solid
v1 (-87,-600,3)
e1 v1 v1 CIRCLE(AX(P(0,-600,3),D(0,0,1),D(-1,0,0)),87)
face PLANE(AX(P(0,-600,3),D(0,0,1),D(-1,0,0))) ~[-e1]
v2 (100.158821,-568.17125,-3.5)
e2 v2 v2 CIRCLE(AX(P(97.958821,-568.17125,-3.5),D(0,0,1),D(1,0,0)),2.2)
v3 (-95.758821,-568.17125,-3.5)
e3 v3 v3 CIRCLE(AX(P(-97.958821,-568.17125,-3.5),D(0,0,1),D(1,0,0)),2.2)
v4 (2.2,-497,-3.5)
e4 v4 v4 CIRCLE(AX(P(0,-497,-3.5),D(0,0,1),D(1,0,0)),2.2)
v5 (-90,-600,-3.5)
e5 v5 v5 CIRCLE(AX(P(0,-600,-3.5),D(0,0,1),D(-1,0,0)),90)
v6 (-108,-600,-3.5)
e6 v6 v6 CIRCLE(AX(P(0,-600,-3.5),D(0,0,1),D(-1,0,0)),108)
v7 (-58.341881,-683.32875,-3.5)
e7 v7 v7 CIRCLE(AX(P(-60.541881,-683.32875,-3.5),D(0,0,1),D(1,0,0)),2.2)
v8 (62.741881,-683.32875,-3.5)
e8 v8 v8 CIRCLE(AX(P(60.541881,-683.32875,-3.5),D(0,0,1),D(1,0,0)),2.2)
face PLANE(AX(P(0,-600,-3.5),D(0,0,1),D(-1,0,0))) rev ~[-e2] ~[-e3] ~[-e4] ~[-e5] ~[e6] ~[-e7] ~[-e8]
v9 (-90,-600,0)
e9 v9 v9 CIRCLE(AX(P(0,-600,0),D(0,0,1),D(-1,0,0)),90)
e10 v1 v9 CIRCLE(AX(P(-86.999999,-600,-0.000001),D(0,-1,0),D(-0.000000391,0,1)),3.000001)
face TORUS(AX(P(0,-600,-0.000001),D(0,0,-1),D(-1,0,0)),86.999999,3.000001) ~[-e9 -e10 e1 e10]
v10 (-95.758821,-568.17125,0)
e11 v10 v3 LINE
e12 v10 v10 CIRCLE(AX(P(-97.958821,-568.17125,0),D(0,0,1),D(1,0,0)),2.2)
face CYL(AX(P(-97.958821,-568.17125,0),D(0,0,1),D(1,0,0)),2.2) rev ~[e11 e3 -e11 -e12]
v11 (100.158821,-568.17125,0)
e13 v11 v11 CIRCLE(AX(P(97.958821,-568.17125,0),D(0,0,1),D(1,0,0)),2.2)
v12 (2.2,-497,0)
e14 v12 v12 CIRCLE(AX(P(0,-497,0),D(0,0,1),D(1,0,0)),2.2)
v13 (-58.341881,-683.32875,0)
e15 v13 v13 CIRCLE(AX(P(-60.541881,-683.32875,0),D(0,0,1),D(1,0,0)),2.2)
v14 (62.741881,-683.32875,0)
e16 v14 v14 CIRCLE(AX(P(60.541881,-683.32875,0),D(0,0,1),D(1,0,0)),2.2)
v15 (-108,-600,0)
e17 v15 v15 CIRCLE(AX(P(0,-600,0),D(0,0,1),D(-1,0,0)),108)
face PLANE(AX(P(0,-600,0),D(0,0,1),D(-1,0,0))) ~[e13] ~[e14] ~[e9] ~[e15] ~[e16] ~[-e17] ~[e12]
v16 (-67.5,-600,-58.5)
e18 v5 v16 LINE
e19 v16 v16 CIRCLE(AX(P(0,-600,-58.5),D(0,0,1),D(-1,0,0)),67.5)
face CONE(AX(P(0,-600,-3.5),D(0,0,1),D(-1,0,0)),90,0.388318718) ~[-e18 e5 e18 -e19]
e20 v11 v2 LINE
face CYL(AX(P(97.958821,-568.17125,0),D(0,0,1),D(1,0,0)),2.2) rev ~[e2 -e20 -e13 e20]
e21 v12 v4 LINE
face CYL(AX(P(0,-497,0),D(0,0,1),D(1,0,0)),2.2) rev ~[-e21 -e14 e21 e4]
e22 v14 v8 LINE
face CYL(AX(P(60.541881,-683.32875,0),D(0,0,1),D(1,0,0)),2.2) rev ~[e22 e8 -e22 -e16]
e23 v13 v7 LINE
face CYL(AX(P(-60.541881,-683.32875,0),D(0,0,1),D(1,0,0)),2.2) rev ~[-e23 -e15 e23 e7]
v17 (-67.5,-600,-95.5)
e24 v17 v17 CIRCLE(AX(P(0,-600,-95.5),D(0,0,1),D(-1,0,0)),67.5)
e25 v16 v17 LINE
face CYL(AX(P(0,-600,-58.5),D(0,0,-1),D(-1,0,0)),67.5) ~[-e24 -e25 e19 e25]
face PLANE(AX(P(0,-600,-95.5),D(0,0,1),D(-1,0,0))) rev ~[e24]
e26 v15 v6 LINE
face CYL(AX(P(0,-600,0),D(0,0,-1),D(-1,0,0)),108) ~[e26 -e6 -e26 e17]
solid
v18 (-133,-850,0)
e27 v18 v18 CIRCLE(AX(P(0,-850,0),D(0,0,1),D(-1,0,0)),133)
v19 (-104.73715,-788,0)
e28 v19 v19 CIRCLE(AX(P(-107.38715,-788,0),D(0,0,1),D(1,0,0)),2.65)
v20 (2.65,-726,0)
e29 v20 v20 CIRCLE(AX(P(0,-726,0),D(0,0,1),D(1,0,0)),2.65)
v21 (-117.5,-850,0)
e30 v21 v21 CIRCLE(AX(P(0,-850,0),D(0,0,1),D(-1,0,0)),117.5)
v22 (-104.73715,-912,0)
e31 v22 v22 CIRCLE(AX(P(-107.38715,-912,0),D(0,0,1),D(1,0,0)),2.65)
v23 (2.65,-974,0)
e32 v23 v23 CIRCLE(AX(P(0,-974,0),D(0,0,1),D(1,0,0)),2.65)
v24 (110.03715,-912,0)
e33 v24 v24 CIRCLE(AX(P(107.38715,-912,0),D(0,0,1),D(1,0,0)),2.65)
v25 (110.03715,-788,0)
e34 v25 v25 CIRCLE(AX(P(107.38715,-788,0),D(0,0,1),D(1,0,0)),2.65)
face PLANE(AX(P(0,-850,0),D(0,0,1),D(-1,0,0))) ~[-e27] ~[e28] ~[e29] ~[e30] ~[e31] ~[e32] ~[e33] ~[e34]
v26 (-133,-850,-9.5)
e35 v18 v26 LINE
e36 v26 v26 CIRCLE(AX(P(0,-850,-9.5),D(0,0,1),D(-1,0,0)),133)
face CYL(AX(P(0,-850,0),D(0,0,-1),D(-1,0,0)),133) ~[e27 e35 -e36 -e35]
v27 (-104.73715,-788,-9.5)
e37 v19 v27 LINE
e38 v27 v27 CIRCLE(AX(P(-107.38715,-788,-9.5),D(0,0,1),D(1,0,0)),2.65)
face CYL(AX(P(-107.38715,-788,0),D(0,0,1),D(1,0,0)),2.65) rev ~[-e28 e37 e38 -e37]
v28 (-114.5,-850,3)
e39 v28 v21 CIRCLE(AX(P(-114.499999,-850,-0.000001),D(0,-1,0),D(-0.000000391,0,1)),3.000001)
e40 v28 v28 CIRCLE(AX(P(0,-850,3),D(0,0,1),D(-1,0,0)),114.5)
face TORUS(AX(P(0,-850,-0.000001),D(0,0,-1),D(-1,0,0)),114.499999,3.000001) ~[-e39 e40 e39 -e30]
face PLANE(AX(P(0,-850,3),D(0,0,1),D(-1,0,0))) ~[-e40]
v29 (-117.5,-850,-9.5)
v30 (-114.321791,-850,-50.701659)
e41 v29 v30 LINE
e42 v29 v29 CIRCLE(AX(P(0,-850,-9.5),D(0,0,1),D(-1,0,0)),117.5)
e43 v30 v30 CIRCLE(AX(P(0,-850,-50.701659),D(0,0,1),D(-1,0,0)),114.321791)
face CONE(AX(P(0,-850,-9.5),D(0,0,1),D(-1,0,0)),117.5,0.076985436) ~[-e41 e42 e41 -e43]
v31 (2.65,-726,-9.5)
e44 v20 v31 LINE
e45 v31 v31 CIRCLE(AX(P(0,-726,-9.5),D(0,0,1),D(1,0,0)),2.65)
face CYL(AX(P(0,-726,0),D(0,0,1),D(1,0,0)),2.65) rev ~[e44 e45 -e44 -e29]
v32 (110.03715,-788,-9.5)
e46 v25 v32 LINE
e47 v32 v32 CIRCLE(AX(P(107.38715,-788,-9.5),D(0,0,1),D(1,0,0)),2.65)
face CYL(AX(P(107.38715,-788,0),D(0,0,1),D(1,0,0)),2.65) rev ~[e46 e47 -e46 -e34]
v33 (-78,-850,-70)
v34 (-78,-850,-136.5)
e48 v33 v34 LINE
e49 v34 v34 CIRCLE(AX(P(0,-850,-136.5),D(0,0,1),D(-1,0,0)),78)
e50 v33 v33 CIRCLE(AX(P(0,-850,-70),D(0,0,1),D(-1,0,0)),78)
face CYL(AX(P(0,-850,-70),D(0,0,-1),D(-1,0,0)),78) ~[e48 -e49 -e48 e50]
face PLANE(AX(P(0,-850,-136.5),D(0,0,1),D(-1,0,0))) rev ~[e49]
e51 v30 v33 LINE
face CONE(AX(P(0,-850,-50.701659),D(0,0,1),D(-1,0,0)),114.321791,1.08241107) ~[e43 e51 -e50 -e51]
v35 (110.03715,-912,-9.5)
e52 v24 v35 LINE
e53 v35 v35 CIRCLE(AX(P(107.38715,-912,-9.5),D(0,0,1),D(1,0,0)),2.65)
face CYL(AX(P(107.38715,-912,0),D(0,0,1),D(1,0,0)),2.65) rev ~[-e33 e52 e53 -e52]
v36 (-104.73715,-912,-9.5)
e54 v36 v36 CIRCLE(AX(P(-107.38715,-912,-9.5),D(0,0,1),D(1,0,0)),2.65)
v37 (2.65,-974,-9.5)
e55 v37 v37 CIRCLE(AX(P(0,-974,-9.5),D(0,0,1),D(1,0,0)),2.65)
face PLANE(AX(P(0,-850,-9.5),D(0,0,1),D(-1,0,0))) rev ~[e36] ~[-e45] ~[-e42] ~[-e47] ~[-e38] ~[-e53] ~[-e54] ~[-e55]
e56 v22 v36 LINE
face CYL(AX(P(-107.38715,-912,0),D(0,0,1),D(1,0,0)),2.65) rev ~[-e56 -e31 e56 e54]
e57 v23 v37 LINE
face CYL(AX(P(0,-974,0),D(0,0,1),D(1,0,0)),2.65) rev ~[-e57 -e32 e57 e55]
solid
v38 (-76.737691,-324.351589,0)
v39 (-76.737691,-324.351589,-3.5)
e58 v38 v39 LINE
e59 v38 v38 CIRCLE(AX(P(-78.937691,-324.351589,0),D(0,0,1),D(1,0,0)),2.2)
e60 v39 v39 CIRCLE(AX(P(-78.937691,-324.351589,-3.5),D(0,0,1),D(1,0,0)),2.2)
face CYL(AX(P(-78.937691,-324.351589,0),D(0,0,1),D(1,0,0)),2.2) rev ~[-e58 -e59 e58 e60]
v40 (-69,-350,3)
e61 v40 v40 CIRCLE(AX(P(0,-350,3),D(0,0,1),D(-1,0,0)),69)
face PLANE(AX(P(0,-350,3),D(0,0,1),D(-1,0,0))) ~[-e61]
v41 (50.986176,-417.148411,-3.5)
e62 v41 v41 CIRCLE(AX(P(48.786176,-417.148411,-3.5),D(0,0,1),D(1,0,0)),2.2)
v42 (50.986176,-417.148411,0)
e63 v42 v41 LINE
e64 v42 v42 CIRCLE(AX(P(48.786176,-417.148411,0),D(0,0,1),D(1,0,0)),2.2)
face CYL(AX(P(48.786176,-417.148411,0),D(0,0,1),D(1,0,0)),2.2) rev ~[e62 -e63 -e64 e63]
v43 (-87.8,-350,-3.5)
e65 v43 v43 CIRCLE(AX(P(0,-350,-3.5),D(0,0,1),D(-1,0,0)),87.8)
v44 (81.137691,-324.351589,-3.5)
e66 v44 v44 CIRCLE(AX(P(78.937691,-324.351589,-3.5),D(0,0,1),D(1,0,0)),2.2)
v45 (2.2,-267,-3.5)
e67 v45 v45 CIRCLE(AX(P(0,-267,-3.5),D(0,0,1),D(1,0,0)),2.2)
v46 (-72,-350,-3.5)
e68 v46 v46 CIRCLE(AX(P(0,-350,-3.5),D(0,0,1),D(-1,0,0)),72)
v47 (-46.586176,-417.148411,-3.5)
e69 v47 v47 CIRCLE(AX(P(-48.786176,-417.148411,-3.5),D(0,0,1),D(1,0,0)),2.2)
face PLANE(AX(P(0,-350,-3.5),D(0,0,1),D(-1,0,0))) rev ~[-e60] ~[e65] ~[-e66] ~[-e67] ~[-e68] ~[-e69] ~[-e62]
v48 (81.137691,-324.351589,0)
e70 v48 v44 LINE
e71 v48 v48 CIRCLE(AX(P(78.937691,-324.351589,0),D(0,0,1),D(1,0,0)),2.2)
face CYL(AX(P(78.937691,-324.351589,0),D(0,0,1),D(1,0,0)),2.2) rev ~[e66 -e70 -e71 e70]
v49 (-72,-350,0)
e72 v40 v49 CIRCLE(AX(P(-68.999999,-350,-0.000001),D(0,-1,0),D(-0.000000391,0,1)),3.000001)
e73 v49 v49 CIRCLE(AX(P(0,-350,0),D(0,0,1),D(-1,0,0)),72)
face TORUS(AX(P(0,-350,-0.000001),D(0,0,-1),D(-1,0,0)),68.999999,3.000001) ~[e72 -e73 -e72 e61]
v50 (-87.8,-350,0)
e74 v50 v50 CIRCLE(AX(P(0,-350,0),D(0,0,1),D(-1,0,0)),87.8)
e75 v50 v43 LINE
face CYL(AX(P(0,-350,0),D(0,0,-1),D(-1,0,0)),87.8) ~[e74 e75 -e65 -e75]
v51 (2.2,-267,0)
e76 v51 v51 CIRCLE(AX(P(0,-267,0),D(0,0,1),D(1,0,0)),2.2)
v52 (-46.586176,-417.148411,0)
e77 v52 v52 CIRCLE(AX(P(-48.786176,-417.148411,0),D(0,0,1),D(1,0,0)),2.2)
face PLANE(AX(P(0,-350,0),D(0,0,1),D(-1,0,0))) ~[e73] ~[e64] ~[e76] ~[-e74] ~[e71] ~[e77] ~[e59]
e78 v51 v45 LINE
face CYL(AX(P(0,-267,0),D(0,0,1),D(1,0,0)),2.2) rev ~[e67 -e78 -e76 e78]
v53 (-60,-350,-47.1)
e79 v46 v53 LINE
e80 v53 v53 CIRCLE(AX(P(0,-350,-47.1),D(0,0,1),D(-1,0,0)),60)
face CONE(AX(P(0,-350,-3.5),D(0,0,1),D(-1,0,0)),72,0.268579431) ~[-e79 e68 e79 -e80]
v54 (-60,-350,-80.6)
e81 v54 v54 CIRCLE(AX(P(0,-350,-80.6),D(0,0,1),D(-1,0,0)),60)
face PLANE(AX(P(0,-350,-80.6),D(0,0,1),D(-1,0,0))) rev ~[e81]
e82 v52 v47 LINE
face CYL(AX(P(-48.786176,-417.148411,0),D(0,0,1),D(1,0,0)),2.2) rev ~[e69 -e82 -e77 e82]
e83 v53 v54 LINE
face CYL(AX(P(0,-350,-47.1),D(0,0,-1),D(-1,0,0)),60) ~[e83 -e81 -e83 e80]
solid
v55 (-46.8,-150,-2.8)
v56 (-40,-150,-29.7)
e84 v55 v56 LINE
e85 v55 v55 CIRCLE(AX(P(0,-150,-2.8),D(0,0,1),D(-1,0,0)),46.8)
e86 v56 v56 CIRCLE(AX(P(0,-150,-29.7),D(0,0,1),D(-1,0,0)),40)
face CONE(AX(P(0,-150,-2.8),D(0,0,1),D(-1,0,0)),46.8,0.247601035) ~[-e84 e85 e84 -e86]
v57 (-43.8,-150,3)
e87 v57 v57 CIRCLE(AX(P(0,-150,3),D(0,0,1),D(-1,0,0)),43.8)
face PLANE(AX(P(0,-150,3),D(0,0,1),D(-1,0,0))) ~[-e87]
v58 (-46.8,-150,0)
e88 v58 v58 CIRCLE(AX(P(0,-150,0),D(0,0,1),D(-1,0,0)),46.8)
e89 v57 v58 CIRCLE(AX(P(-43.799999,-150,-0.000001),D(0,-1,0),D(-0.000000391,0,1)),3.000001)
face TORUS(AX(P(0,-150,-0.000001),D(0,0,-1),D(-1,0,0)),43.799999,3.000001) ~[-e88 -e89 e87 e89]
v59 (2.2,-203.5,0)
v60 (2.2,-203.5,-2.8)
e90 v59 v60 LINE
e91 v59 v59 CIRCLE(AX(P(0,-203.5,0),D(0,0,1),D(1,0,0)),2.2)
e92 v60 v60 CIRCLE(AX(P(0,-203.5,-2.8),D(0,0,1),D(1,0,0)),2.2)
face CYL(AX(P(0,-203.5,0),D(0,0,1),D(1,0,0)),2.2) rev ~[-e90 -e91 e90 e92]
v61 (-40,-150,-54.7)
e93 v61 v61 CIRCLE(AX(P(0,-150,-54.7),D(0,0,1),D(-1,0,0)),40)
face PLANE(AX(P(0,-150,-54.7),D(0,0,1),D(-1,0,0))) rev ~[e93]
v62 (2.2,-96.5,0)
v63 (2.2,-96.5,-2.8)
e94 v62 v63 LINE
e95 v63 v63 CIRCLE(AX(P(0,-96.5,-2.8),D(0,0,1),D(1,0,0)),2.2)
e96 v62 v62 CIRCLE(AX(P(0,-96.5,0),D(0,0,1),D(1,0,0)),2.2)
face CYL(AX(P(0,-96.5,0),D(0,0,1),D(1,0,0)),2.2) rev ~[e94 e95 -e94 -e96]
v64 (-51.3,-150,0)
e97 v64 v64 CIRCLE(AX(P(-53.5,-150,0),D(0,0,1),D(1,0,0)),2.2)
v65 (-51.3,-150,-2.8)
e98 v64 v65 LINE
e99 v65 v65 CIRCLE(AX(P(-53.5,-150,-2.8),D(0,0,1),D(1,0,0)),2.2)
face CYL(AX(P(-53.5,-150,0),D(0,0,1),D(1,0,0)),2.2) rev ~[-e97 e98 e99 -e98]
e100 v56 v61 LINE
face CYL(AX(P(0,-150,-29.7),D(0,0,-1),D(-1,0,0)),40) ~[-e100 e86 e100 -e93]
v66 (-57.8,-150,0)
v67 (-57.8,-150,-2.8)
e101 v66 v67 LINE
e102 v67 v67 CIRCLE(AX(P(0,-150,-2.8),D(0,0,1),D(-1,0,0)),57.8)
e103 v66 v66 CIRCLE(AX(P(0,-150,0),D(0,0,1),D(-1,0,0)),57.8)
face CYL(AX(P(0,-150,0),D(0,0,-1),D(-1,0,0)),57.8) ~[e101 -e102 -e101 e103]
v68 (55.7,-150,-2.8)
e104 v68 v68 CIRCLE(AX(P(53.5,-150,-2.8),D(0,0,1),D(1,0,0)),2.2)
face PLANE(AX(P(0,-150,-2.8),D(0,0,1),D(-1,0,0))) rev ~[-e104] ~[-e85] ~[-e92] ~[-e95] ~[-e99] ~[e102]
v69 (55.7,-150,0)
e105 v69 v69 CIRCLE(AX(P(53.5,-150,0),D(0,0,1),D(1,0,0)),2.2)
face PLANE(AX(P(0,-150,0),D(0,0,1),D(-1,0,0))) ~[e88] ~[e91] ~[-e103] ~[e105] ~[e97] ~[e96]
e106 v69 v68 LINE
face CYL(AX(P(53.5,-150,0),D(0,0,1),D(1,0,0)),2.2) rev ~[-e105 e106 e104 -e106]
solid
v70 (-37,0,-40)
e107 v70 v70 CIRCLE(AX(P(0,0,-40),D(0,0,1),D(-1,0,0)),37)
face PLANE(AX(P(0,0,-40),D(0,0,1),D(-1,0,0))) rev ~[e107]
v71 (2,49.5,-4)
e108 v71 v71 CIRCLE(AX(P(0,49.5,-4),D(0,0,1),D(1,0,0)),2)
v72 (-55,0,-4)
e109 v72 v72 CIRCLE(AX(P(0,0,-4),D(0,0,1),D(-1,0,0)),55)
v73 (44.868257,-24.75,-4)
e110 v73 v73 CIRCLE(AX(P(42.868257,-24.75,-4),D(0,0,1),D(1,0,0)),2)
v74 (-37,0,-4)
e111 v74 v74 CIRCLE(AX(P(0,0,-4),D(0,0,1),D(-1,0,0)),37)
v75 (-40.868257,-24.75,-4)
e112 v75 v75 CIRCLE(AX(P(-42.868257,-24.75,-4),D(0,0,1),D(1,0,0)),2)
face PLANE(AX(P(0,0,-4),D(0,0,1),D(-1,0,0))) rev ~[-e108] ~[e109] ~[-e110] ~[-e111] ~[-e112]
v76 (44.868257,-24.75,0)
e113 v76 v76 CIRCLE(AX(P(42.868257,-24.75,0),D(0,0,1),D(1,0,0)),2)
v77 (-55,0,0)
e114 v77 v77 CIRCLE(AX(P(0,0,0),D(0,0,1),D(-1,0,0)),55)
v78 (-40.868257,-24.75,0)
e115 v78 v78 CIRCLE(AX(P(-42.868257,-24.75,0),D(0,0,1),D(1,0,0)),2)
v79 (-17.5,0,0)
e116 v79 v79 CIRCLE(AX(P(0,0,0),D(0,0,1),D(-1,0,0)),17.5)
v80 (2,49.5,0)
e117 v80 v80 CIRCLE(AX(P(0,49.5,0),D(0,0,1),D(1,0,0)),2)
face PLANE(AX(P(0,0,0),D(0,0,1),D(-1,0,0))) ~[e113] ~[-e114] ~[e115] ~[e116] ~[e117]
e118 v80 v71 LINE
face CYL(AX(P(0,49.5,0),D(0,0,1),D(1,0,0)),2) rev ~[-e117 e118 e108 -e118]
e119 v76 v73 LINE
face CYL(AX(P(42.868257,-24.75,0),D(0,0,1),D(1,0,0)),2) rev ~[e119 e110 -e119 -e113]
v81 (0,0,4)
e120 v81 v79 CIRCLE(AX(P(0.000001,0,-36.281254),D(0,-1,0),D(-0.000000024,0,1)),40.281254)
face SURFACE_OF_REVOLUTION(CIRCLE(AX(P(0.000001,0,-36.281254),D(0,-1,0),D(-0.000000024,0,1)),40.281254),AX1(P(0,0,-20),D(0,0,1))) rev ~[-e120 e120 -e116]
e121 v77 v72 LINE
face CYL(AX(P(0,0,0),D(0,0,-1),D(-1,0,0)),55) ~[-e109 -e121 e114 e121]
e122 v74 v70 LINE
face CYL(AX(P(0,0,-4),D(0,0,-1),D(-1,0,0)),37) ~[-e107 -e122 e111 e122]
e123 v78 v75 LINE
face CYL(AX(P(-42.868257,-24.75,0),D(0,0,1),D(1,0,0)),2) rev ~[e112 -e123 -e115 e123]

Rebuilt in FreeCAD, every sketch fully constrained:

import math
import FreeCAD as App
import Part
import Sketcher
Q = App.Units.Quantity

doc = App.newDocument("Part")
body = doc.addObject("PartDesign::Body", "Body")

# Sketch on XZ plane
sketch1 = body.newObject("Sketcher::SketchObject", "Sketch")
sketch1.AttachmentSupport = (doc.getObject("XZ_Plane"), [""])
sketch1.MapMode = "FlatFace"
sketch1.addGeometry(Part.ArcOfCircle(Part.Circle(App.Vector(0, -36.3, 0), App.Vector(0, 0, 1), 40.3), math.radians(90), math.radians(116)), False)
sketch1.addGeometry(Part.LineSegment(App.Vector(-17.5, 0, 0), App.Vector(-55, 0, 0)), False)
sketch1.addGeometry(Part.LineSegment(App.Vector(-55, 0, 0), App.Vector(-55, -4, 0)), False)
sketch1.addGeometry(Part.LineSegment(App.Vector(-55, -4, 0), App.Vector(-37, -4, 0)), False)
sketch1.addGeometry(Part.LineSegment(App.Vector(-37, -4, 0), App.Vector(-37, -40, 0)), False)
sketch1.addGeometry(Part.LineSegment(App.Vector(-37, -40, 0), App.Vector(0, -40, 0)), False)
sketch1.addGeometry(Part.LineSegment(App.Vector(0, -40, 0), App.Vector(0, 4, 0)), False)
sketch1.addConstraint(Sketcher.Constraint("Coincident", 0, 2, 1, 1))
sketch1.addConstraint(Sketcher.Constraint("Coincident", 1, 2, 2, 1))
sketch1.addConstraint(Sketcher.Constraint("Coincident", 2, 2, 3, 1))
sketch1.addConstraint(Sketcher.Constraint("Coincident", 3, 2, 4, 1))
sketch1.addConstraint(Sketcher.Constraint("Coincident", 4, 2, 5, 1))
sketch1.addConstraint(Sketcher.Constraint("Coincident", 5, 2, 6, 1))
sketch1.addConstraint(Sketcher.Constraint("Coincident", 6, 2, 0, 1))
sketch1.addConstraint(Sketcher.Constraint("Horizontal", 1))
sketch1.addConstraint(Sketcher.Constraint("Vertical", 2))
sketch1.addConstraint(Sketcher.Constraint("Horizontal", 3))
sketch1.addConstraint(Sketcher.Constraint("Vertical", 4))
sketch1.addConstraint(Sketcher.Constraint("Horizontal", 5))
sketch1.addConstraint(Sketcher.Constraint("Vertical", 6))
sketch1.addConstraint(Sketcher.Constraint("PointOnObject", 0, 3, -2))
sketch1.addConstraint(Sketcher.Constraint("PointOnObject", 0, 2, -1))
sketch1.addConstraint(Sketcher.Constraint("PointOnObject", 5, 2, -2))
sketch1.addConstraint(Sketcher.Constraint("DistanceX", 3, 1, 3, 2, Q("18 mm")))
sketch1.addConstraint(Sketcher.Constraint("DistanceX", 5, 1, 5, 2, Q("37 mm")))
sketch1.addConstraint(Sketcher.Constraint("DistanceY", 2, 2, 2, 1, Q("4 mm")))
sketch1.addConstraint(Sketcher.Constraint("DistanceY", 4, 2, 4, 1, Q("36 mm")))
sketch1.addConstraint(Sketcher.Constraint("DistanceY", 6, 1, 6, 2, Q("44 mm")))
sketch1.addConstraint(Sketcher.Constraint("DistanceX", 1, 2, 1, 1, Q("37.5 mm")))
revolution = body.newObject("PartDesign::Revolution", "Revolution")
revolution.Profile = sketch1
revolution.ReferenceAxis = (sketch1, ["V_Axis"])
revolution.Angle = 360

# Sketch on XY plane
sketch2 = body.newObject("Sketcher::SketchObject", "Sketch001")
sketch2.AttachmentSupport = (doc.getObject("XY_Plane"), [""])
sketch2.MapMode = "FlatFace"
sketch2.addGeometry(Part.Circle(App.Vector(0, 49.5, 0), App.Vector(0, 0, 1), 2), False)
sketch2.addGeometry(Part.Circle(App.Vector(-42.9, -24.8, 0), App.Vector(0, 0, 1), 2), False)
sketch2.addGeometry(Part.Circle(App.Vector(42.9, -24.8, 0), App.Vector(0, 0, 1), 2), False)
sketch2.addConstraint(Sketcher.Constraint("Equal", 0, 1))
sketch2.addConstraint(Sketcher.Constraint("Equal", 1, 2))
sketch2.addConstraint(Sketcher.Constraint("Symmetric", 1, 3, 2, 3, -2))
sketch2.addConstraint(Sketcher.Constraint("PointOnObject", 0, 3, -2))
sketch2.addConstraint(Sketcher.Constraint("Diameter", 0, Q("4 mm")))
sketch2.addConstraint(Sketcher.Constraint("DistanceY", -1, 1, 0, 3, Q("49.5 mm")))
sketch2.addConstraint(Sketcher.Constraint("DistanceY", 1, 3, -1, 1, Q("24.75 mm")))
sketch2.addConstraint(Sketcher.Constraint("DistanceX", 1, 3, -1, 1, Q("42.868257 mm")))
pocket1 = body.newObject("PartDesign::Pocket", "Pocket")
pocket1.Profile = sketch2
pocket1.Type = "ThroughAll"
body2 = doc.addObject("PartDesign::Body", "Body001")

# Sketch on XZ plane
sketch3 = body2.newObject("Sketcher::SketchObject", "Sketch002")
sketch3.AttachmentSupport = (doc.getObject("XZ_Plane001"), [""])
sketch3.MapMode = "FlatFace"
sketch3.AttachmentOffset = App.Placement(App.Vector(0, 0, 150), App.Rotation())
sketch3.addGeometry(Part.LineSegment(App.Vector(0, -54.7, 0), App.Vector(0, 3, 0)), False)
sketch3.addGeometry(Part.LineSegment(App.Vector(0, 3, 0), App.Vector(-43.8, 3, 0)), False)
sketch3.addGeometry(Part.ArcOfCircle(Part.Circle(App.Vector(-43.8, 0, 0), App.Vector(0, 0, 1), 3), math.radians(90), math.radians(180)), False)
sketch3.addGeometry(Part.LineSegment(App.Vector(-46.8, 0, 0), App.Vector(-57.8, 0, 0)), False)
sketch3.addGeometry(Part.LineSegment(App.Vector(-57.8, 0, 0), App.Vector(-57.8, -2.8, 0)), False)
sketch3.addGeometry(Part.LineSegment(App.Vector(-57.8, -2.8, 0), App.Vector(-46.8, -2.8, 0)), False)
sketch3.addGeometry(Part.LineSegment(App.Vector(-46.8, -2.8, 0), App.Vector(-40, -29.7, 0)), False)
sketch3.addGeometry(Part.LineSegment(App.Vector(-40, -29.7, 0), App.Vector(-40, -54.7, 0)), False)
sketch3.addGeometry(Part.LineSegment(App.Vector(-40, -54.7, 0), App.Vector(0, -54.7, 0)), False)
sketch3.addConstraint(Sketcher.Constraint("Coincident", 0, 2, 1, 1))
sketch3.addConstraint(Sketcher.Constraint("Tangent", 1, 2, 2, 1))
sketch3.addConstraint(Sketcher.Constraint("Coincident", 2, 2, 3, 1))
sketch3.addConstraint(Sketcher.Constraint("Coincident", 3, 2, 4, 1))
sketch3.addConstraint(Sketcher.Constraint("Coincident", 4, 2, 5, 1))
sketch3.addConstraint(Sketcher.Constraint("Coincident", 5, 2, 6, 1))
sketch3.addConstraint(Sketcher.Constraint("Coincident", 6, 2, 7, 1))
sketch3.addConstraint(Sketcher.Constraint("Coincident", 7, 2, 8, 1))
sketch3.addConstraint(Sketcher.Constraint("Coincident", 8, 2, 0, 1))
sketch3.addConstraint(Sketcher.Constraint("Vertical", 0))
sketch3.addConstraint(Sketcher.Constraint("Horizontal", 1))
sketch3.addConstraint(Sketcher.Constraint("Horizontal", 3))
sketch3.addConstraint(Sketcher.Constraint("Vertical", 4))
sketch3.addConstraint(Sketcher.Constraint("Horizontal", 5))
sketch3.addConstraint(Sketcher.Constraint("Vertical", 7))
sketch3.addConstraint(Sketcher.Constraint("Horizontal", 8))
sketch3.addConstraint(Sketcher.Constraint("PointOnObject", 2, 3, -1))
sketch3.addConstraint(Sketcher.Constraint("PointOnObject", 0, 2, -2))
sketch3.addConstraint(Sketcher.Constraint("PointOnObject", 2, 2, -1))
sketch3.addConstraint(Sketcher.Constraint("Vertical", 2, 2, 5, 2))
sketch3.addConstraint(Sketcher.Constraint("Radius", 2, Q("3.000001 mm")))
sketch3.addConstraint(Sketcher.Constraint("DistanceX", 3, 2, 3, 1, Q("11 mm")))
sketch3.addConstraint(Sketcher.Constraint("DistanceX", 8, 1, 8, 2, Q("40 mm")))
sketch3.addConstraint(Sketcher.Constraint("DistanceY", 7, 2, 7, 1, Q("25 mm")))
sketch3.addConstraint(Sketcher.Constraint("DistanceX", 1, 2, 1, 1, Q("43.8 mm")))
sketch3.addConstraint(Sketcher.Constraint("DistanceY", 0, 1, 0, 2, Q("57.7 mm")))
sketch3.addConstraint(Sketcher.Constraint("DistanceY", 4, 2, 4, 1, Q("2.8 mm")))
revolution2 = body2.newObject("PartDesign::Revolution", "Revolution001")
revolution2.Profile = sketch3
revolution2.ReferenceAxis = (sketch3, ["V_Axis"])
revolution2.Angle = 360

# Sketch on XY plane
sketch4 = body2.newObject("Sketcher::SketchObject", "Sketch003")
sketch4.AttachmentSupport = (doc.getObject("XY_Plane001"), [""])
sketch4.MapMode = "FlatFace"
sketch4.addGeometry(Part.Circle(App.Vector(0, -96.5, 0), App.Vector(0, 0, 1), 2.2), False)
sketch4.addGeometry(Part.Circle(App.Vector(-53.5, -150, 0), App.Vector(0, 0, 1), 2.2), False)
sketch4.addGeometry(Part.Circle(App.Vector(0, -203.5, 0), App.Vector(0, 0, 1), 2.2), False)
sketch4.addGeometry(Part.Circle(App.Vector(53.5, -150, 0), App.Vector(0, 0, 1), 2.2), False)
sketch4.addConstraint(Sketcher.Constraint("Equal", 0, 1))
sketch4.addConstraint(Sketcher.Constraint("Equal", 1, 2))
sketch4.addConstraint(Sketcher.Constraint("Equal", 2, 3))
sketch4.addConstraint(Sketcher.Constraint("Symmetric", 1, 3, 3, 3, -2))
sketch4.addConstraint(Sketcher.Constraint("PointOnObject", 0, 3, -2))
sketch4.addConstraint(Sketcher.Constraint("PointOnObject", 2, 3, -2))
sketch4.addConstraint(Sketcher.Constraint("Diameter", 0, Q("4.4 mm")))
sketch4.addConstraint(Sketcher.Constraint("DistanceY", 1, 3, -1, 1, Q("150 mm")))
sketch4.addConstraint(Sketcher.Constraint("DistanceY", 2, 3, 0, 3, Q("107 mm")))
sketch4.addConstraint(Sketcher.Constraint("DistanceX", 1, 3, 3, 3, Q("107 mm")))
sketch4.addConstraint(Sketcher.Constraint("DistanceY", 0, 3, -1, 1, Q("96.5 mm")))
pocket2 = body2.newObject("PartDesign::Pocket", "Pocket001")
pocket2.Profile = sketch4
pocket2.Type = "ThroughAll"
body3 = doc.addObject("PartDesign::Body", "Body002")

# Sketch on XZ plane
sketch5 = body3.newObject("Sketcher::SketchObject", "Sketch004")
sketch5.AttachmentSupport = (doc.getObject("XZ_Plane002"), [""])
sketch5.MapMode = "FlatFace"
sketch5.AttachmentOffset = App.Placement(App.Vector(0, 0, 350), App.Rotation())
sketch5.addGeometry(Part.LineSegment(App.Vector(0, -80.6, 0), App.Vector(0, 3, 0)), False)
sketch5.addGeometry(Part.LineSegment(App.Vector(0, 3, 0), App.Vector(-69, 3, 0)), False)
sketch5.addGeometry(Part.ArcOfCircle(Part.Circle(App.Vector(-69, 0, 0), App.Vector(0, 0, 1), 3), math.radians(90), math.radians(180)), False)
sketch5.addGeometry(Part.LineSegment(App.Vector(-72, 0, 0), App.Vector(-87.8, 0, 0)), False)
sketch5.addGeometry(Part.LineSegment(App.Vector(-87.8, 0, 0), App.Vector(-87.8, -3.5, 0)), False)
sketch5.addGeometry(Part.LineSegment(App.Vector(-87.8, -3.5, 0), App.Vector(-72, -3.5, 0)), False)
sketch5.addGeometry(Part.LineSegment(App.Vector(-72, -3.5, 0), App.Vector(-60, -47.1, 0)), False)
sketch5.addGeometry(Part.LineSegment(App.Vector(-60, -47.1, 0), App.Vector(-60, -80.6, 0)), False)
sketch5.addGeometry(Part.LineSegment(App.Vector(-60, -80.6, 0), App.Vector(0, -80.6, 0)), False)
sketch5.addConstraint(Sketcher.Constraint("Coincident", 0, 2, 1, 1))
sketch5.addConstraint(Sketcher.Constraint("Tangent", 1, 2, 2, 1))
sketch5.addConstraint(Sketcher.Constraint("Coincident", 2, 2, 3, 1))
sketch5.addConstraint(Sketcher.Constraint("Coincident", 3, 2, 4, 1))
sketch5.addConstraint(Sketcher.Constraint("Coincident", 4, 2, 5, 1))
sketch5.addConstraint(Sketcher.Constraint("Coincident", 5, 2, 6, 1))
sketch5.addConstraint(Sketcher.Constraint("Coincident", 6, 2, 7, 1))
sketch5.addConstraint(Sketcher.Constraint("Coincident", 7, 2, 8, 1))
sketch5.addConstraint(Sketcher.Constraint("Coincident", 8, 2, 0, 1))
sketch5.addConstraint(Sketcher.Constraint("Vertical", 0))
sketch5.addConstraint(Sketcher.Constraint("Horizontal", 1))
sketch5.addConstraint(Sketcher.Constraint("Horizontal", 3))
sketch5.addConstraint(Sketcher.Constraint("Vertical", 4))
sketch5.addConstraint(Sketcher.Constraint("Horizontal", 5))
sketch5.addConstraint(Sketcher.Constraint("Vertical", 7))
sketch5.addConstraint(Sketcher.Constraint("Horizontal", 8))
sketch5.addConstraint(Sketcher.Constraint("PointOnObject", 2, 3, -1))
sketch5.addConstraint(Sketcher.Constraint("PointOnObject", 0, 2, -2))
sketch5.addConstraint(Sketcher.Constraint("PointOnObject", 2, 2, -1))
sketch5.addConstraint(Sketcher.Constraint("Vertical", 2, 2, 5, 2))
sketch5.addConstraint(Sketcher.Constraint("Radius", 2, Q("3.000001 mm")))
sketch5.addConstraint(Sketcher.Constraint("DistanceX", 1, 2, 1, 1, Q("69 mm")))
sketch5.addConstraint(Sketcher.Constraint("DistanceX", 8, 1, 8, 2, Q("60 mm")))
sketch5.addConstraint(Sketcher.Constraint("DistanceX", 3, 2, 3, 1, Q("15.8 mm")))
sketch5.addConstraint(Sketcher.Constraint("DistanceY", 0, 1, 0, 2, Q("83.6 mm")))
sketch5.addConstraint(Sketcher.Constraint("DistanceY", 4, 2, 4, 1, Q("3.5 mm")))
sketch5.addConstraint(Sketcher.Constraint("DistanceY", 7, 2, 7, 1, Q("33.5 mm")))
revolution3 = body3.newObject("PartDesign::Revolution", "Revolution002")
revolution3.Profile = sketch5
revolution3.ReferenceAxis = (sketch5, ["V_Axis"])
revolution3.Angle = 360

# Sketch on XY plane
sketch6 = body3.newObject("Sketcher::SketchObject", "Sketch005")
sketch6.AttachmentSupport = (doc.getObject("XY_Plane002"), [""])
sketch6.MapMode = "FlatFace"
sketch6.addGeometry(Part.Circle(App.Vector(0, -267, 0), App.Vector(0, 0, 1), 2.2), False)
sketch6.addGeometry(Part.Circle(App.Vector(-78.9, -324.4, 0), App.Vector(0, 0, 1), 2.2), False)
sketch6.addGeometry(Part.Circle(App.Vector(-48.8, -417.1, 0), App.Vector(0, 0, 1), 2.2), False)
sketch6.addGeometry(Part.Circle(App.Vector(48.8, -417.1, 0), App.Vector(0, 0, 1), 2.2), False)
sketch6.addGeometry(Part.Circle(App.Vector(78.9, -324.4, 0), App.Vector(0, 0, 1), 2.2), False)
sketch6.addConstraint(Sketcher.Constraint("Equal", 0, 1))
sketch6.addConstraint(Sketcher.Constraint("Equal", 1, 2))
sketch6.addConstraint(Sketcher.Constraint("Equal", 2, 3))
sketch6.addConstraint(Sketcher.Constraint("Equal", 3, 4))
sketch6.addConstraint(Sketcher.Constraint("Symmetric", 2, 3, 3, 3, -2))
sketch6.addConstraint(Sketcher.Constraint("Symmetric", 1, 3, 4, 3, -2))
sketch6.addConstraint(Sketcher.Constraint("PointOnObject", 0, 3, -2))
sketch6.addConstraint(Sketcher.Constraint("Diameter", 0, Q("4.4 mm")))
sketch6.addConstraint(Sketcher.Constraint("DistanceY", 0, 3, -1, 1, Q("267 mm")))
sketch6.addConstraint(Sketcher.Constraint("DistanceX", 1, 3, -1, 1, Q("78.937691 mm")))
sketch6.addConstraint(Sketcher.Constraint("DistanceY", 1, 3, -1, 1, Q("324.351589 mm")))
sketch6.addConstraint(Sketcher.Constraint("DistanceY", 2, 3, -1, 1, Q("417.148411 mm")))
sketch6.addConstraint(Sketcher.Constraint("DistanceX", 2, 3, 3, 3, Q("97.572352 mm")))
pocket3 = body3.newObject("PartDesign::Pocket", "Pocket002")
pocket3.Profile = sketch6
pocket3.Type = "ThroughAll"
body4 = doc.addObject("PartDesign::Body", "Body003")

# Sketch on XZ plane
sketch7 = body4.newObject("Sketcher::SketchObject", "Sketch006")
sketch7.AttachmentSupport = (doc.getObject("XZ_Plane003"), [""])
sketch7.MapMode = "FlatFace"
sketch7.AttachmentOffset = App.Placement(App.Vector(0, 0, 600), App.Rotation())
sketch7.addGeometry(Part.LineSegment(App.Vector(0, -95.5, 0), App.Vector(0, 3, 0)), False)
sketch7.addGeometry(Part.LineSegment(App.Vector(0, 3, 0), App.Vector(-87, 3, 0)), False)
sketch7.addGeometry(Part.ArcOfCircle(Part.Circle(App.Vector(-87, 0, 0), App.Vector(0, 0, 1), 3), math.radians(90), math.radians(180)), False)
sketch7.addGeometry(Part.LineSegment(App.Vector(-90, 0, 0), App.Vector(-108, 0, 0)), False)
sketch7.addGeometry(Part.LineSegment(App.Vector(-108, 0, 0), App.Vector(-108, -3.5, 0)), False)
sketch7.addGeometry(Part.LineSegment(App.Vector(-108, -3.5, 0), App.Vector(-90, -3.5, 0)), False)
sketch7.addGeometry(Part.LineSegment(App.Vector(-90, -3.5, 0), App.Vector(-67.5, -58.5, 0)), False)
sketch7.addGeometry(Part.LineSegment(App.Vector(-67.5, -58.5, 0), App.Vector(-67.5, -95.5, 0)), False)
sketch7.addGeometry(Part.LineSegment(App.Vector(-67.5, -95.5, 0), App.Vector(0, -95.5, 0)), False)
sketch7.addConstraint(Sketcher.Constraint("Coincident", 0, 2, 1, 1))
sketch7.addConstraint(Sketcher.Constraint("Tangent", 1, 2, 2, 1))
sketch7.addConstraint(Sketcher.Constraint("Coincident", 2, 2, 3, 1))
sketch7.addConstraint(Sketcher.Constraint("Coincident", 3, 2, 4, 1))
sketch7.addConstraint(Sketcher.Constraint("Coincident", 4, 2, 5, 1))
sketch7.addConstraint(Sketcher.Constraint("Coincident", 5, 2, 6, 1))
sketch7.addConstraint(Sketcher.Constraint("Coincident", 6, 2, 7, 1))
sketch7.addConstraint(Sketcher.Constraint("Coincident", 7, 2, 8, 1))
sketch7.addConstraint(Sketcher.Constraint("Coincident", 8, 2, 0, 1))
sketch7.addConstraint(Sketcher.Constraint("Vertical", 0))
sketch7.addConstraint(Sketcher.Constraint("Horizontal", 1))
sketch7.addConstraint(Sketcher.Constraint("Horizontal", 3))
sketch7.addConstraint(Sketcher.Constraint("Vertical", 4))
sketch7.addConstraint(Sketcher.Constraint("Horizontal", 5))
sketch7.addConstraint(Sketcher.Constraint("Vertical", 7))
sketch7.addConstraint(Sketcher.Constraint("Horizontal", 8))
sketch7.addConstraint(Sketcher.Constraint("PointOnObject", 2, 3, -1))
sketch7.addConstraint(Sketcher.Constraint("PointOnObject", 0, 2, -2))
sketch7.addConstraint(Sketcher.Constraint("PointOnObject", 2, 2, -1))
sketch7.addConstraint(Sketcher.Constraint("Vertical", 2, 2, 5, 2))
sketch7.addConstraint(Sketcher.Constraint("Radius", 2, Q("3.000001 mm")))
sketch7.addConstraint(Sketcher.Constraint("DistanceX", 1, 2, 1, 1, Q("87 mm")))
sketch7.addConstraint(Sketcher.Constraint("DistanceX", 3, 2, 3, 1, Q("18 mm")))
sketch7.addConstraint(Sketcher.Constraint("DistanceY", 7, 2, 7, 1, Q("37 mm")))
sketch7.addConstraint(Sketcher.Constraint("DistanceX", 8, 1, 8, 2, Q("67.5 mm")))
sketch7.addConstraint(Sketcher.Constraint("DistanceY", 0, 1, 0, 2, Q("98.5 mm")))
sketch7.addConstraint(Sketcher.Constraint("DistanceY", 4, 2, 4, 1, Q("3.5 mm")))
revolution4 = body4.newObject("PartDesign::Revolution", "Revolution003")
revolution4.Profile = sketch7
revolution4.ReferenceAxis = (sketch7, ["V_Axis"])
revolution4.Angle = 360

# Sketch on XY plane
sketch8 = body4.newObject("Sketcher::SketchObject", "Sketch007")
sketch8.AttachmentSupport = (doc.getObject("XY_Plane003"), [""])
sketch8.MapMode = "FlatFace"
sketch8.addGeometry(Part.Circle(App.Vector(0, -497, 0), App.Vector(0, 0, 1), 2.2), False)
sketch8.addGeometry(Part.Circle(App.Vector(-98, -568.2, 0), App.Vector(0, 0, 1), 2.2), False)
sketch8.addGeometry(Part.Circle(App.Vector(-60.5, -683.3, 0), App.Vector(0, 0, 1), 2.2), False)
sketch8.addGeometry(Part.Circle(App.Vector(60.5, -683.3, 0), App.Vector(0, 0, 1), 2.2), False)
sketch8.addGeometry(Part.Circle(App.Vector(98, -568.2, 0), App.Vector(0, 0, 1), 2.2), False)
sketch8.addConstraint(Sketcher.Constraint("Equal", 0, 1))
sketch8.addConstraint(Sketcher.Constraint("Equal", 1, 2))
sketch8.addConstraint(Sketcher.Constraint("Equal", 2, 3))
sketch8.addConstraint(Sketcher.Constraint("Equal", 3, 4))
sketch8.addConstraint(Sketcher.Constraint("Symmetric", 2, 3, 3, 3, -2))
sketch8.addConstraint(Sketcher.Constraint("Symmetric", 1, 3, 4, 3, -2))
sketch8.addConstraint(Sketcher.Constraint("PointOnObject", 0, 3, -2))
sketch8.addConstraint(Sketcher.Constraint("Diameter", 0, Q("4.4 mm")))
sketch8.addConstraint(Sketcher.Constraint("DistanceY", 0, 3, -1, 1, Q("497 mm")))
sketch8.addConstraint(Sketcher.Constraint("DistanceY", 2, 3, 1, 3, Q("115.1575 mm")))
sketch8.addConstraint(Sketcher.Constraint("DistanceX", 1, 3, 3, 3, Q("158.500702 mm")))
sketch8.addConstraint(Sketcher.Constraint("DistanceX", 1, 3, -1, 1, Q("97.958821 mm")))
sketch8.addConstraint(Sketcher.Constraint("DistanceY", 1, 3, -1, 1, Q("568.17125 mm")))
pocket4 = body4.newObject("PartDesign::Pocket", "Pocket003")
pocket4.Profile = sketch8
pocket4.Type = "ThroughAll"
body5 = doc.addObject("PartDesign::Body", "Body004")

# Sketch on XZ plane
sketch9 = body5.newObject("Sketcher::SketchObject", "Sketch008")
sketch9.AttachmentSupport = (doc.getObject("XZ_Plane004"), [""])
sketch9.MapMode = "FlatFace"
sketch9.AttachmentOffset = App.Placement(App.Vector(0, 0, 850), App.Rotation())
sketch9.addGeometry(Part.LineSegment(App.Vector(0, -136.5, 0), App.Vector(0, 3, 0)), False)
sketch9.addGeometry(Part.LineSegment(App.Vector(0, 3, 0), App.Vector(-114.5, 3, 0)), False)
sketch9.addGeometry(Part.ArcOfCircle(Part.Circle(App.Vector(-114.5, 0, 0), App.Vector(0, 0, 1), 3), math.radians(90), math.radians(180)), False)
sketch9.addGeometry(Part.LineSegment(App.Vector(-117.5, 0, 0), App.Vector(-133, 0, 0)), False)
sketch9.addGeometry(Part.LineSegment(App.Vector(-133, 0, 0), App.Vector(-133, -9.5, 0)), False)
sketch9.addGeometry(Part.LineSegment(App.Vector(-133, -9.5, 0), App.Vector(-117.5, -9.5, 0)), False)
sketch9.addGeometry(Part.LineSegment(App.Vector(-117.5, -9.5, 0), App.Vector(-114.3, -50.7, 0)), False)
sketch9.addGeometry(Part.LineSegment(App.Vector(-114.3, -50.7, 0), App.Vector(-78, -70, 0)), False)
sketch9.addGeometry(Part.LineSegment(App.Vector(-78, -70, 0), App.Vector(-78, -136.5, 0)), False)
sketch9.addGeometry(Part.LineSegment(App.Vector(-78, -136.5, 0), App.Vector(0, -136.5, 0)), False)
sketch9.addConstraint(Sketcher.Constraint("Coincident", 0, 2, 1, 1))
sketch9.addConstraint(Sketcher.Constraint("Tangent", 1, 2, 2, 1))
sketch9.addConstraint(Sketcher.Constraint("Coincident", 2, 2, 3, 1))
sketch9.addConstraint(Sketcher.Constraint("Coincident", 3, 2, 4, 1))
sketch9.addConstraint(Sketcher.Constraint("Coincident", 4, 2, 5, 1))
sketch9.addConstraint(Sketcher.Constraint("Coincident", 5, 2, 6, 1))
sketch9.addConstraint(Sketcher.Constraint("Coincident", 6, 2, 7, 1))
sketch9.addConstraint(Sketcher.Constraint("Coincident", 7, 2, 8, 1))
sketch9.addConstraint(Sketcher.Constraint("Coincident", 8, 2, 9, 1))
sketch9.addConstraint(Sketcher.Constraint("Coincident", 9, 2, 0, 1))
sketch9.addConstraint(Sketcher.Constraint("Vertical", 0))
sketch9.addConstraint(Sketcher.Constraint("Horizontal", 1))
sketch9.addConstraint(Sketcher.Constraint("Horizontal", 3))
sketch9.addConstraint(Sketcher.Constraint("Vertical", 4))
sketch9.addConstraint(Sketcher.Constraint("Horizontal", 5))
sketch9.addConstraint(Sketcher.Constraint("Vertical", 8))
sketch9.addConstraint(Sketcher.Constraint("Horizontal", 9))
sketch9.addConstraint(Sketcher.Constraint("PointOnObject", 2, 3, -1))
sketch9.addConstraint(Sketcher.Constraint("PointOnObject", 0, 2, -2))
sketch9.addConstraint(Sketcher.Constraint("PointOnObject", 2, 2, -1))
sketch9.addConstraint(Sketcher.Constraint("Vertical", 2, 2, 5, 2))
sketch9.addConstraint(Sketcher.Constraint("Radius", 2, Q("3.000001 mm")))
sketch9.addConstraint(Sketcher.Constraint("DistanceX", 9, 1, 9, 2, Q("78 mm")))
sketch9.addConstraint(Sketcher.Constraint("DistanceX", 1, 2, 1, 1, Q("114.5 mm")))
sketch9.addConstraint(Sketcher.Constraint("DistanceX", 3, 2, 3, 1, Q("15.5 mm")))
sketch9.addConstraint(Sketcher.Constraint("DistanceY", 0, 1, 0, 2, Q("139.5 mm")))
sketch9.addConstraint(Sketcher.Constraint("DistanceY", 4, 2, 4, 1, Q("9.5 mm")))
sketch9.addConstraint(Sketcher.Constraint("DistanceY", 8, 2, 8, 1, Q("66.5 mm")))
sketch9.addConstraint(Sketcher.Constraint("DistanceX", 6, 2, -1, 1, Q("114.321791 mm")))
sketch9.addConstraint(Sketcher.Constraint("DistanceY", 6, 2, -1, 1, Q("50.701659 mm")))
revolution5 = body5.newObject("PartDesign::Revolution", "Revolution004")
revolution5.Profile = sketch9
revolution5.ReferenceAxis = (sketch9, ["V_Axis"])
revolution5.Angle = 360

# Sketch on XY plane
sketch10 = body5.newObject("Sketcher::SketchObject", "Sketch009")
sketch10.AttachmentSupport = (doc.getObject("XY_Plane004"), [""])
sketch10.MapMode = "FlatFace"
sketch10.addGeometry(Part.Circle(App.Vector(0, -726, 0), App.Vector(0, 0, 1), 2.6), False)
sketch10.addGeometry(Part.Circle(App.Vector(-107.4, -788, 0), App.Vector(0, 0, 1), 2.6), False)
sketch10.addGeometry(Part.Circle(App.Vector(-107.4, -912, 0), App.Vector(0, 0, 1), 2.6), False)
sketch10.addGeometry(Part.Circle(App.Vector(0, -974, 0), App.Vector(0, 0, 1), 2.6), False)
sketch10.addGeometry(Part.Circle(App.Vector(107.4, -912, 0), App.Vector(0, 0, 1), 2.6), False)
sketch10.addGeometry(Part.Circle(App.Vector(107.4, -788, 0), App.Vector(0, 0, 1), 2.6), False)
sketch10.addConstraint(Sketcher.Constraint("Equal", 0, 1))
sketch10.addConstraint(Sketcher.Constraint("Equal", 1, 2))
sketch10.addConstraint(Sketcher.Constraint("Equal", 2, 3))
sketch10.addConstraint(Sketcher.Constraint("Equal", 3, 4))
sketch10.addConstraint(Sketcher.Constraint("Equal", 4, 5))
sketch10.addConstraint(Sketcher.Constraint("Symmetric", 2, 3, 4, 3, -2))
sketch10.addConstraint(Sketcher.Constraint("Symmetric", 1, 3, 5, 3, -2))
sketch10.addConstraint(Sketcher.Constraint("PointOnObject", 0, 3, -2))
sketch10.addConstraint(Sketcher.Constraint("PointOnObject", 3, 3, -2))
sketch10.addConstraint(Sketcher.Constraint("Vertical", 1, 3, 2, 3))
sketch10.addConstraint(Sketcher.Constraint("Diameter", 0, Q("5.3 mm")))
sketch10.addConstraint(Sketcher.Constraint("DistanceY", 0, 3, -1, 1, Q("726 mm")))
sketch10.addConstraint(Sketcher.Constraint("DistanceY", 1, 3, -1, 1, Q("788 mm")))
sketch10.addConstraint(Sketcher.Constraint("DistanceY", 2, 3, -1, 1, Q("912 mm")))
sketch10.addConstraint(Sketcher.Constraint("DistanceY", 3, 3, -1, 1, Q("974 mm")))
sketch10.addConstraint(Sketcher.Constraint("DistanceX", 2, 3, 4, 3, Q("214.7743 mm")))
pocket5 = body5.newObject("PartDesign::Pocket", "Pocket004")
pocket5.Profile = sketch10
pocket5.Type = "ThroughAll"

doc.recompute()
